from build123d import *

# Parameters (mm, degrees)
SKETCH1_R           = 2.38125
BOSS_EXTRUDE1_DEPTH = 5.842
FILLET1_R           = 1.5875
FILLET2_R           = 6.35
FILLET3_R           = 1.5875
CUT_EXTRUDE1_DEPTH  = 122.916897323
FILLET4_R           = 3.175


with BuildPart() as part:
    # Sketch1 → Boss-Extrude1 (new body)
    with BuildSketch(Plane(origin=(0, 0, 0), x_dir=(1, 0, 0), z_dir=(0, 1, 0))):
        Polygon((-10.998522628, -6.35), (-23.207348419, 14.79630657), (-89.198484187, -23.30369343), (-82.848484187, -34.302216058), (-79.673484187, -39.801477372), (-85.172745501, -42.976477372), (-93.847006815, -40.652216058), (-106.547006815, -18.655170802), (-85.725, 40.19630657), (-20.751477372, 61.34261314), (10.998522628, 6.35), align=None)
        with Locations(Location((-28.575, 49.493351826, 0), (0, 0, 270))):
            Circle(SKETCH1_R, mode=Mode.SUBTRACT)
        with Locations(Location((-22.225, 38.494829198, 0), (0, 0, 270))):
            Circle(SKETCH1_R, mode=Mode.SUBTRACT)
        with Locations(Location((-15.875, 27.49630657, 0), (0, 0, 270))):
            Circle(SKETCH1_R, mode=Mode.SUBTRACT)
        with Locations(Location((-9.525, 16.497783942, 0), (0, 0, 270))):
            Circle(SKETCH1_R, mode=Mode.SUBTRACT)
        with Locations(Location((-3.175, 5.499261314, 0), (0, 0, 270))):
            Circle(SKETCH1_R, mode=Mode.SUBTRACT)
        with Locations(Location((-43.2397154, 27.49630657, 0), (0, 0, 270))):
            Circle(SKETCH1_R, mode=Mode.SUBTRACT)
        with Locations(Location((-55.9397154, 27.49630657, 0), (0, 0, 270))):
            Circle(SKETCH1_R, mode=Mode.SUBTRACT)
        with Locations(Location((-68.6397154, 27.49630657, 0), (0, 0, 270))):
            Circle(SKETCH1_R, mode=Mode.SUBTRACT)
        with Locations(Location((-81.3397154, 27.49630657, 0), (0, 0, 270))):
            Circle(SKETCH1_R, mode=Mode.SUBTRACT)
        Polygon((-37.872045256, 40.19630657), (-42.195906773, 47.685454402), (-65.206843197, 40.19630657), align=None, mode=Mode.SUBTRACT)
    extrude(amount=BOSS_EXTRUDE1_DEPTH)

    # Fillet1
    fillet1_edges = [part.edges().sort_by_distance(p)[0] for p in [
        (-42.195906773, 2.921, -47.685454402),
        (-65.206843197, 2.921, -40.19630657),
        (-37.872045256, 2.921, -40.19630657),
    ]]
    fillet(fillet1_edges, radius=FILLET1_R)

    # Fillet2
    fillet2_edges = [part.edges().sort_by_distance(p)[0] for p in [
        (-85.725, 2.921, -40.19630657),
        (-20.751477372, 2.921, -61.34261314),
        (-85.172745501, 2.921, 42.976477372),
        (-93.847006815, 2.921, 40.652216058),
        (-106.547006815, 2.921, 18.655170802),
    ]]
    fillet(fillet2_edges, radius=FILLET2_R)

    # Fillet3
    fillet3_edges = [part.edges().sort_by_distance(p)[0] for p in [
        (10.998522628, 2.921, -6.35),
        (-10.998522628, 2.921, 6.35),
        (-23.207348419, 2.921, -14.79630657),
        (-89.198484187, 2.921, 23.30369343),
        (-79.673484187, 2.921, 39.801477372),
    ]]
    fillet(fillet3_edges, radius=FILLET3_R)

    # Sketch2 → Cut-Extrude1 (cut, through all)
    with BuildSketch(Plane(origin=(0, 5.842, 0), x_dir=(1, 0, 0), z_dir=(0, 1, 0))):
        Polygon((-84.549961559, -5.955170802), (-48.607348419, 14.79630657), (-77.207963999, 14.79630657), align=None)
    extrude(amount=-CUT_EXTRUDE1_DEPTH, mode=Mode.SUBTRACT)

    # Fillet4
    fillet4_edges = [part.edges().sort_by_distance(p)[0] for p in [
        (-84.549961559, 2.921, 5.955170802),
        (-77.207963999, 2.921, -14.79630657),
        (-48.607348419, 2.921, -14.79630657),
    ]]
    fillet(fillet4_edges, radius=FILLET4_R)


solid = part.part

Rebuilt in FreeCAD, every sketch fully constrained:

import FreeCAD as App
import Part
import Sketcher

V = App.Vector
Q = App.Units.Quantity


def edges_at(feature, points):
    """Names of the edges that pass closest to the given points."""
    edges = feature.Shape.Edges
    near = lambda p: min(range(len(edges)), key=lambda i: edges[i].distToShape(Part.Vertex(*p))[0])
    return sorted({f"Edge{near(p) + 1}" for p in points})


def add_polygon(sketch, points):
    """Adds a closed chain of lines whose ends are joined by coincident constraints."""
    first, n = sketch.GeometryCount, len(points)
    for a, b in zip(points, points[1:] + points[:1]):
        sketch.addGeometry(Part.LineSegment(App.Vector(*a, 0), App.Vector(*b, 0)), False)
    for i in range(n):
        sketch.addConstraint(Sketcher.Constraint("Coincident", first + i, 2, first + (i + 1) % n, 1))

doc = App.newDocument("Part")
body = doc.addObject("PartDesign::Body", "Body")

# Sketch on XZ plane
sketch1 = body.newObject("Sketcher::SketchObject", "Sketch")
sketch1.AttachmentSupport = (doc.getObject("XZ_Plane"), [""])
sketch1.MapMode = "FlatFace"
add_polygon(sketch1, [(-23.207348, -14.796307), (-10.998523, 6.35), (10.998523, -6.35), (-20.751477, -61.342613), (-85.725, -40.196307), (-106.547007, 18.655171), (-93.847007, 40.652216), (-85.172746, 42.976477), (-79.673484, 39.801477), (-89.198484, 23.303693)])  # lines 0-9
sketch1.addGeometry(Part.Circle(V(-3.175, -5.499261, 0), V(0, 0, 1), 2.38125), False)  # 10
sketch1.addGeometry(Part.Circle(V(-9.525, -16.497784, 0), V(0, 0, 1), 2.38125), False)  # 11
sketch1.addGeometry(Part.Circle(V(-15.875, -27.496307, 0), V(0, 0, 1), 2.38125), False)  # 12
sketch1.addGeometry(Part.Circle(V(-22.225, -38.494829, 0), V(0, 0, 1), 2.38125), False)  # 13
sketch1.addGeometry(Part.Circle(V(-28.575, -49.493352, 0), V(0, 0, 1), 2.38125), False)  # 14
sketch1.addGeometry(Part.Circle(V(-43.239715, -27.496307, 0), V(0, 0, 1), 2.38125), False)  # 15
sketch1.addGeometry(Part.Circle(V(-55.939715, -27.496307, 0), V(0, 0, 1), 2.38125), False)  # 16
sketch1.addGeometry(Part.Circle(V(-68.639715, -27.496307, 0), V(0, 0, 1), 2.38125), False)  # 17
sketch1.addGeometry(Part.Circle(V(-81.339715, -27.496307, 0), V(0, 0, 1), 2.38125), False)  # 18
add_polygon(sketch1, [(-37.872045, -40.196307), (-65.206843, -40.196307), (-42.195907, -47.685454)])  # lines 19-21
sketch1.addConstraint([
    Sketcher.Constraint("Horizontal", 19),
    Sketcher.Constraint("Equal", 10, 11),
    Sketcher.Constraint("Equal", 11, 12),
    Sketcher.Constraint("Equal", 12, 13),
    Sketcher.Constraint("Equal", 13, 14),
    Sketcher.Constraint("Equal", 14, 15),
    Sketcher.Constraint("Equal", 15, 16),
    Sketcher.Constraint("Equal", 16, 17),
    Sketcher.Constraint("Equal", 17, 18),
    Sketcher.Constraint("Symmetric", 0, 2, 1, 2, -1, 1),
    Sketcher.Constraint("Perpendicular", 0, 1),
    Sketcher.Constraint("Perpendicular", 1, 2),
    Sketcher.Constraint("Parallel", 2, 5),
    Sketcher.Constraint("Perpendicular", 5, 7),
    Sketcher.Constraint("Perpendicular", 7, 8),
    Sketcher.Constraint("Perpendicular", 8, 9),
    Sketcher.Constraint("Parallel", 3, 20),
    Sketcher.Constraint("Perpendicular", 9, 21),
    Sketcher.Constraint("Horizontal", 12, 3, 15, 3),
    Sketcher.Constraint("Horizontal", 15, 3, 16, 3),
    Sketcher.Constraint("Horizontal", 16, 3, 17, 3),
    Sketcher.Constraint("Horizontal", 17, 3, 18, 3),
    Sketcher.Constraint("Horizontal", 3, 2, 19, 2),
    Sketcher.Constraint("Equal", 1, 5),
    Sketcher.Constraint("Distance", 1, Q("1 in")),
    Sketcher.Constraint("Distance", 9, Q("3 in")),
    Sketcher.Constraint("Diameter", 10, Q("0.1875 in")),
    Sketcher.Constraint("Angle", 0, Q("60 deg")),
    Sketcher.Constraint("Angle", 6, Q("15 deg")),
    Sketcher.Constraint("DistanceX", 14, 3, 10, 3, Q("1 in")),
    Sketcher.Constraint("DistanceX", 17, 3, 15, 3, Q("1 in")),
    Sketcher.Constraint("DistanceX", 18, 3, 16, 3, Q("1 in")),
    Sketcher.Constraint("DistanceY", 18, 3, 8, 2, Q("2 in")),
    Sketcher.Constraint("Distance", 2, Q("2.5 in")),
    Sketcher.Constraint("DistanceX", 12, 3, 10, 3, Q("0.5 in")),
    Sketcher.Constraint("DistanceX", 13, 3, 11, 3, Q("0.5 in")),
    Sketcher.Constraint("DistanceX", 16, 3, 15, 3, Q("0.5 in")),
    Sketcher.Constraint("DistanceY", 3, 2, 18, 3, Q("0.5 in")),
    Sketcher.Constraint("Distance", 7, Q("0.25 in")),
    Sketcher.Constraint("Distance", 8, Q("0.75 in")),
    Sketcher.Constraint("DistanceX", 11, 3, 10, 3, Q("0.25 in")),
    Sketcher.Constraint("DistanceX", 3, 2, 14, 3, Q("2.25 in")),
    Sketcher.Constraint("DistanceX", 10, 3, -1, 1, Q("0.125 in")),
    Sketcher.Constraint("Distance", 0, Q("24.417652 mm")),
    Sketcher.Constraint("DistanceX", 19, 2, 19, 1, Q("27.334798 mm")),
    Sketcher.Constraint("DistanceY", 10, 3, -1, 1, Q("5.499261 mm")),
    Sketcher.Constraint("DistanceY", 13, 3, -1, 1, Q("38.494829 mm")),
    Sketcher.Constraint("DistanceY", 14, 3, -1, 1, Q("49.493352 mm")),
    Sketcher.Constraint("DistanceY", -1, 1, 4, 2, Q("18.655171 mm")),
    Sketcher.Constraint("DistanceX", 15, 3, 2, 2, Q("22.488238 mm")),
    Sketcher.Constraint("DistanceY", 2, 2, 11, 3, Q("44.844829 mm")),
    Sketcher.Constraint("DistanceX", 15, 3, 20, 2, Q("1.043809 mm")),
])
pad1 = body.newObject("PartDesign::Pad", "Pad")
pad1.Profile = sketch1
pad1.Length = Q("0.23 in")
pad1.Reversed = True
doc.recompute()

fillet = body.newObject("PartDesign::Fillet", "Fillet")
fillet.Base = (pad1, edges_at(pad1, [(-42.196, 2.921, -47.685), (-65.207, 2.921, -40.196), (-37.872, 2.921, -40.196)]))
fillet.Radius = Q("0.0625 in")
doc.recompute()

fillet2 = body.newObject("PartDesign::Fillet", "Fillet001")
fillet2.Base = (fillet, edges_at(fillet, [
    (-85.725, 2.921, -40.196),
    (-20.751, 2.921, -61.343),
    (-85.173, 2.921, 42.976),
    (-93.847, 2.921, 40.652),
    (-106.547, 2.921, 18.655),
]))
fillet2.Radius = Q("0.25 in")
doc.recompute()

fillet3 = body.newObject("PartDesign::Fillet", "Fillet002")
fillet3.Base = (fillet2, edges_at(fillet2, [
    (10.999, 2.921, -6.35),
    (-10.999, 2.921, 6.35),
    (-23.207, 2.921, -14.796),
    (-89.198, 2.921, 23.304),
    (-79.673, 2.921, 39.801),
]))
fillet3.Radius = Q("0.0625 in")

# Sketch on XZ plane
sketch2 = body.newObject("Sketcher::SketchObject", "Sketch001")
sketch2.AttachmentSupport = (doc.getObject("XZ_Plane"), [""])
sketch2.MapMode = "FlatFace"
sketch2.AttachmentOffset = App.Placement(V(0, 0, -0.23 * 25.4), App.Rotation())
add_polygon(sketch2, [(-84.549962, 5.955171), (-48.607348, -14.796307), (-77.207964, -14.796307)])  # lines 0-2
sketch2.addConstraint([
    Sketcher.Constraint("Horizontal", 1),
    Sketcher.Constraint("Angle", 0, Q("-30 deg")),
    Sketcher.Constraint("DistanceX", 1, 2, 1, 1, Q("28.600616 mm")),
    Sketcher.Constraint("DistanceX", 0, 2, -1, 1, Q("48.607348 mm")),
    Sketcher.Constraint("DistanceX", 2, 2, -1, 1, Q("84.549962 mm")),
    Sketcher.Constraint("DistanceY", -1, 1, 2, 2, Q("5.955171 mm")),
])
pocket1 = body.newObject("PartDesign::Pocket", "Pocket")
pocket1.Profile = sketch2
pocket1.Type = "ThroughAll"
pocket1.Reversed = True
doc.recompute()

fillet4 = body.newObject("PartDesign::Fillet", "Fillet003")
fillet4.Base = (pocket1, edges_at(pocket1, [(-84.55, 2.921, 5.955), (-77.208, 2.921, -14.796), (-48.607, 2.921, -14.796)]))
fillet4.Radius = Q("0.125 in")

doc.recompute()
